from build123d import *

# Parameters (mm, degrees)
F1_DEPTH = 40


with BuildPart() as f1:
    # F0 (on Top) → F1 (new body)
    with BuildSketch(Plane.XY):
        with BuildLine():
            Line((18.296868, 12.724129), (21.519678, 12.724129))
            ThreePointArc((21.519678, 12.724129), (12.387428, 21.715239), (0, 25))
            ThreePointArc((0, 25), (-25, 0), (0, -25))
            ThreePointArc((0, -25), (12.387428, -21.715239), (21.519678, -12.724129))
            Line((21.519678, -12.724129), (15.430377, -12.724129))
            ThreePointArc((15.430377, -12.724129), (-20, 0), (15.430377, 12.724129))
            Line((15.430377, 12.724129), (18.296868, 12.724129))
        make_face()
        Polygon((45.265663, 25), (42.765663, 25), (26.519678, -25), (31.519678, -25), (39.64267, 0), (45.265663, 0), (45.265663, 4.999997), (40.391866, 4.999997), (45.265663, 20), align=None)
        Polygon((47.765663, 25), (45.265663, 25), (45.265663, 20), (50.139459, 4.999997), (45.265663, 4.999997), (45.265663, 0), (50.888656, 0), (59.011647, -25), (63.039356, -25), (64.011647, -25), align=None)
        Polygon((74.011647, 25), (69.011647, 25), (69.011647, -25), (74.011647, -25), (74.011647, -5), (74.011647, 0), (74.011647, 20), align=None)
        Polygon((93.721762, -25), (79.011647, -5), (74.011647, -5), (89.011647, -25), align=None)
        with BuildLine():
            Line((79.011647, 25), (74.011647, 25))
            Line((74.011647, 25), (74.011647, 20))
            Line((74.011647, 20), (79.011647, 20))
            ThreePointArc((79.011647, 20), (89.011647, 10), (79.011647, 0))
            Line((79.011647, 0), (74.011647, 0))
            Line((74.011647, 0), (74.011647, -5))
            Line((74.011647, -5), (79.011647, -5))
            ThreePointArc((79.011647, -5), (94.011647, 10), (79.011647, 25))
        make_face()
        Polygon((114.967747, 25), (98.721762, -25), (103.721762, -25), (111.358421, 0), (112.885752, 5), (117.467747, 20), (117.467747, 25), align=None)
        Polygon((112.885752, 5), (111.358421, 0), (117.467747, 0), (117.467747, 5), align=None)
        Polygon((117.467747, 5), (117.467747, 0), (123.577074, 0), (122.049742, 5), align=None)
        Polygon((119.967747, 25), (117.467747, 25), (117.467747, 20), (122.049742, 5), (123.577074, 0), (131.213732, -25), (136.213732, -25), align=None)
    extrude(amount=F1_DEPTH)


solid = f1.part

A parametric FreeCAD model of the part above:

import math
import FreeCAD as App
import Part
import Sketcher

V = App.Vector
Q = App.Units.Quantity

doc = App.newDocument("Part")
body = doc.addObject("PartDesign::Body", "Body")
body.AllowCompound = True

sketch1 = body.newObject("Sketcher::SketchObject", "Sketch")
sketch1.AttachmentSupport = (doc.getObject("XY_Plane"), [""])
sketch1.MapMode = "FlatFace"
sketch1.addGeometry(Part.ArcOfCircle(Part.Circle(V(-0.000002, -0.000003, 0), V(0, 0, 1), 25.000003), math.radians(30.594928), math.radians(89.999996)), False)
sketch1.addGeometry(Part.ArcOfCircle(Part.Circle(V(0, 0, 0), V(0, 0, 1), 25), math.radians(90), math.radians(270)), False)
sketch1.addGeometry(Part.ArcOfCircle(Part.Circle(V(-0.000002, 0.000003, 0), V(0, 0, 1), 25.000003), math.radians(-89.999996), math.radians(-30.594928)), False)
sketch1.addGeometry(Part.LineSegment(V(21.519678, -12.724129, 0), V(15.430377, -12.724129, 0)), False)
sketch1.addGeometry(Part.ArcOfCircle(Part.Circle(V(0, 0, 0), V(0, 0, 1), 20), math.radians(39.509522), math.radians(320.490478)), False)
sketch1.addGeometry(Part.LineSegment(V(15.430377, 12.724129, 0), V(21.519678, 12.724129, 0)), False)
sketch1.addGeometry(Part.LineSegment(V(42.765663, 25, 0), V(26.519678, -25, 0)), False)
sketch1.addGeometry(Part.LineSegment(V(26.519678, -25, 0), V(31.519678, -25, 0)), False)
sketch1.addGeometry(Part.LineSegment(V(31.519678, -25, 0), V(39.64267, 0, 0)), False)
sketch1.addGeometry(Part.LineSegment(V(39.64267, 0, 0), V(50.888656, 0, 0)), False)
sketch1.addGeometry(Part.LineSegment(V(50.888656, 0, 0), V(59.011647, -25, 0)), False)
sketch1.addGeometry(Part.LineSegment(V(59.011647, -25, 0), V(64.011647, -25, 0)), False)
sketch1.addGeometry(Part.LineSegment(V(64.011647, -25, 0), V(47.765663, 25, 0)), False)
sketch1.addGeometry(Part.LineSegment(V(47.765663, 25, 0), V(42.765663, 25, 0)), False)
sketch1.addGeometry(Part.LineSegment(V(40.391866, 4.999997, 0), V(45.265663, 20, 0)), False)
sketch1.addGeometry(Part.LineSegment(V(45.265663, 20, 0), V(50.139459, 4.999997, 0)), False)
sketch1.addGeometry(Part.LineSegment(V(50.139459, 4.999997, 0), V(40.391866, 4.999997, 0)), False)
sketch1.addGeometry(Part.LineSegment(V(69.011647, 25, 0), V(69.011647, -25, 0)), False)
sketch1.addGeometry(Part.LineSegment(V(69.011647, -25, 0), V(74.011647, -25, 0)), False)
sketch1.addGeometry(Part.LineSegment(V(74.011647, -25, 0), V(74.011647, -5, 0)), False)
sketch1.addGeometry(Part.LineSegment(V(74.011647, -5, 0), V(89.011647, -25, 0)), False)
sketch1.addGeometry(Part.LineSegment(V(89.011647, -25, 0), V(93.721762, -25, 0)), False)
sketch1.addGeometry(Part.LineSegment(V(93.721762, -25, 0), V(79.011647, -5, 0)), False)
sketch1.addGeometry(Part.ArcOfCircle(Part.Circle(V(79.011647, 10, 0), V(0, 0, 1), 15), math.radians(-90), math.radians(90)), False)
sketch1.addGeometry(Part.LineSegment(V(79.011647, 25, 0), V(69.011647, 25, 0)), False)
sketch1.addGeometry(Part.LineSegment(V(74.011647, 0, 0), V(74.011647, 20, 0)), False)
sketch1.addGeometry(Part.LineSegment(V(74.011647, 20, 0), V(79.011647, 20, 0)), False)
sketch1.addGeometry(Part.ArcOfCircle(Part.Circle(V(79.011647, 10, 0), V(0, 0, 1), 10), math.radians(-90), math.radians(90)), False)
sketch1.addGeometry(Part.LineSegment(V(79.011647, 0, 0), V(74.011647, 0, 0)), False)
sketch1.addGeometry(Part.LineSegment(V(114.967747, 25, 0), V(98.721762, -25, 0)), False)
sketch1.addGeometry(Part.LineSegment(V(98.721762, -25, 0), V(103.721762, -25, 0)), False)
sketch1.addGeometry(Part.LineSegment(V(103.721762, -25, 0), V(111.358421, 0, 0)), False)
sketch1.addGeometry(Part.LineSegment(V(111.358421, 0, 0), V(123.577074, 0, 0)), False)
sketch1.addGeometry(Part.LineSegment(V(123.577074, 0, 0), V(131.213732, -25, 0)), False)
sketch1.addGeometry(Part.LineSegment(V(131.213732, -25, 0), V(136.213732, -25, 0)), False)
sketch1.addGeometry(Part.LineSegment(V(136.213732, -25, 0), V(119.967747, 25, 0)), False)
sketch1.addGeometry(Part.LineSegment(V(119.967747, 25, 0), V(114.967747, 25, 0)), False)
sketch1.addGeometry(Part.LineSegment(V(122.049742, 5, 0), V(112.885752, 5, 0)), False)
sketch1.addGeometry(Part.LineSegment(V(112.885752, 5, 0), V(117.467747, 20, 0)), False)
sketch1.addGeometry(Part.LineSegment(V(117.467747, 20, 0), V(122.049742, 5, 0)), False)
sketch1.addConstraint(Sketcher.Constraint("Tangent", 0, 2, 1, 1))
sketch1.addConstraint(Sketcher.Constraint("Tangent", 1, 2, 2, 1))
sketch1.addConstraint(Sketcher.Constraint("Coincident", 2, 2, 3, 1))
sketch1.addConstraint(Sketcher.Constraint("Coincident", 3, 2, 4, 2))
sketch1.addConstraint(Sketcher.Constraint("Coincident", 4, 1, 5, 1))
sketch1.addConstraint(Sketcher.Constraint("Coincident", 5, 2, 0, 1))
sketch1.addConstraint(Sketcher.Constraint("Coincident", 6, 2, 7, 1))
sketch1.addConstraint(Sketcher.Constraint("Coincident", 7, 2, 8, 1))
sketch1.addConstraint(Sketcher.Constraint("Coincident", 8, 2, 9, 1))
sketch1.addConstraint(Sketcher.Constraint("Coincident", 9, 2, 10, 1))
sketch1.addConstraint(Sketcher.Constraint("Coincident", 10, 2, 11, 1))
sketch1.addConstraint(Sketcher.Constraint("Coincident", 11, 2, 12, 1))
sketch1.addConstraint(Sketcher.Constraint("Coincident", 12, 2, 13, 1))
sketch1.addConstraint(Sketcher.Constraint("Coincident", 13, 2, 6, 1))
sketch1.addConstraint(Sketcher.Constraint("Coincident", 14, 2, 15, 1))
sketch1.addConstraint(Sketcher.Constraint("Coincident", 15, 2, 16, 1))
sketch1.addConstraint(Sketcher.Constraint("Coincident", 16, 2, 14, 1))
sketch1.addConstraint(Sketcher.Constraint("Coincident", 17, 2, 18, 1))
sketch1.addConstraint(Sketcher.Constraint("Coincident", 18, 2, 19, 1))
sketch1.addConstraint(Sketcher.Constraint("Coincident", 19, 2, 20, 1))
sketch1.addConstraint(Sketcher.Constraint("Coincident", 20, 2, 21, 1))
sketch1.addConstraint(Sketcher.Constraint("Coincident", 21, 2, 22, 1))
sketch1.addConstraint(Sketcher.Constraint("Coincident", 22, 2, 23, 1))
sketch1.addConstraint(Sketcher.Constraint("Tangent", 23, 2, 24, 1))
sketch1.addConstraint(Sketcher.Constraint("Coincident", 24, 2, 17, 1))
sketch1.addConstraint(Sketcher.Constraint("Coincident", 25, 2, 26, 1))
sketch1.addConstraint(Sketcher.Constraint("Tangent", 26, 2, 27, 2))
sketch1.addConstraint(Sketcher.Constraint("Tangent", 27, 1, 28, 1))
sketch1.addConstraint(Sketcher.Constraint("Coincident", 28, 2, 25, 1))
sketch1.addConstraint(Sketcher.Constraint("Coincident", 29, 2, 30, 1))
sketch1.addConstraint(Sketcher.Constraint("Coincident", 30, 2, 31, 1))
sketch1.addConstraint(Sketcher.Constraint("Coincident", 31, 2, 32, 1))
sketch1.addConstraint(Sketcher.Constraint("Coincident", 32, 2, 33, 1))
sketch1.addConstraint(Sketcher.Constraint("Coincident", 33, 2, 34, 1))
sketch1.addConstraint(Sketcher.Constraint("Coincident", 34, 2, 35, 1))
sketch1.addConstraint(Sketcher.Constraint("Coincident", 35, 2, 36, 1))
sketch1.addConstraint(Sketcher.Constraint("Coincident", 36, 2, 29, 1))
sketch1.addConstraint(Sketcher.Constraint("Coincident", 37, 2, 38, 1))
sketch1.addConstraint(Sketcher.Constraint("Coincident", 38, 2, 39, 1))
sketch1.addConstraint(Sketcher.Constraint("Coincident", 39, 2, 37, 1))
sketch1.addConstraint(Sketcher.Constraint("Horizontal", 3))
sketch1.addConstraint(Sketcher.Constraint("Horizontal", 5))
sketch1.addConstraint(Sketcher.Constraint("Horizontal", 7))
sketch1.addConstraint(Sketcher.Constraint("Horizontal", 9))
sketch1.addConstraint(Sketcher.Constraint("Horizontal", 11))
sketch1.addConstraint(Sketcher.Constraint("Horizontal", 13))
sketch1.addConstraint(Sketcher.Constraint("Horizontal", 16))
sketch1.addConstraint(Sketcher.Constraint("Vertical", 17))
sketch1.addConstraint(Sketcher.Constraint("Horizontal", 18))
sketch1.addConstraint(Sketcher.Constraint("Vertical", 19))
sketch1.addConstraint(Sketcher.Constraint("Horizontal", 21))
sketch1.addConstraint(Sketcher.Constraint("Horizontal", 24))
sketch1.addConstraint(Sketcher.Constraint("Vertical", 25))
sketch1.addConstraint(Sketcher.Constraint("Horizontal", 26))
sketch1.addConstraint(Sketcher.Constraint("Horizontal", 28))
sketch1.addConstraint(Sketcher.Constraint("Horizontal", 30))
sketch1.addConstraint(Sketcher.Constraint("Horizontal", 32))
sketch1.addConstraint(Sketcher.Constraint("Horizontal", 34))
sketch1.addConstraint(Sketcher.Constraint("Horizontal", 36))
sketch1.addConstraint(Sketcher.Constraint("Horizontal", 37))
sketch1.addConstraint(Sketcher.Constraint("Coincident", 0, 3, -1, 1))
sketch1.addConstraint(Sketcher.Constraint("Coincident", 4, 3, -1, 1))
sketch1.addConstraint(Sketcher.Constraint("Coincident", 27, 3, 23, 3))
sketch1.addConstraint(Sketcher.Constraint("Equal", 0, 2))
sketch1.addConstraint(Sketcher.Constraint("Symmetric", 0, 2, 1, 2, -1, 1))
sketch1.addConstraint(Sketcher.Constraint("PointOnObject", 0, 2, -2))
sketch1.addConstraint(Sketcher.Constraint("PointOnObject", 8, 2, -1))
sketch1.addConstraint(Sketcher.Constraint("PointOnObject", 27, 1, -1))
sketch1.addConstraint(Sketcher.Constraint("PointOnObject", 31, 2, -1))
sketch1.addConstraint(Sketcher.Constraint("Parallel", 6, 8))
sketch1.addConstraint(Sketcher.Constraint("Parallel", 10, 12))
sketch1.addConstraint(Sketcher.Constraint("Parallel", 8, 14))
sketch1.addConstraint(Sketcher.Constraint("Parallel", 12, 15))
sketch1.addConstraint(Sketcher.Constraint("Parallel", 14, 29))
sketch1.addConstraint(Sketcher.Constraint("Parallel", 15, 35))
sketch1.addConstraint(Sketcher.Constraint("Parallel", 31, 38))
sketch1.addConstraint(Sketcher.Constraint("Parallel", 33, 39))
sketch1.addConstraint(Sketcher.Constraint("Horizontal", 1, 2, 6, 2))
sketch1.addConstraint(Sketcher.Constraint("Horizontal", 7, 2, 10, 2))
sketch1.addConstraint(Sketcher.Constraint("Horizontal", 0, 2, 12, 2))
sketch1.addConstraint(Sketcher.Constraint("Horizontal", 11, 2, 17, 2))
sketch1.addConstraint(Sketcher.Constraint("Horizontal", 18, 2, 20, 2))
sketch1.addConstraint(Sketcher.Constraint("Horizontal", 19, 2, 22, 2))
sketch1.addConstraint(Sketcher.Constraint("Horizontal", 13, 2, 23, 2))
sketch1.addConstraint(Sketcher.Constraint("Horizontal", 14, 2, 25, 2))
sketch1.addConstraint(Sketcher.Constraint("Horizontal", 21, 2, 29, 2))
sketch1.addConstraint(Sketcher.Constraint("Horizontal", 30, 2, 33, 2))
sketch1.addConstraint(Sketcher.Constraint("Horizontal", 24, 2, 35, 2))
sketch1.addConstraint(Sketcher.Constraint("Horizontal", 26, 2, 38, 2))
sketch1.addConstraint(Sketcher.Constraint("Vertical", 3, 2, 4, 1))
sketch1.addConstraint(Sketcher.Constraint("Vertical", 27, 3, 22, 2))
sketch1.addConstraint(Sketcher.Constraint("Vertical", 19, 2, 25, 2))
sketch1.addConstraint(Sketcher.Constraint("Equal", 7, 11))
sketch1.addConstraint(Sketcher.Constraint("Equal", 11, 13))
sketch1.addConstraint(Sketcher.Constraint("Equal", 13, 18))
sketch1.addConstraint(Sketcher.Constraint("Equal", 18, 26))
sketch1.addConstraint(Sketcher.Constraint("Equal", 28, 30))
sketch1.addConstraint(Sketcher.Constraint("Equal", 30, 34))
sketch1.addConstraint(Sketcher.Constraint("Equal", 34, 36))
sketch1.addConstraint(Sketcher.Constraint("Equal", 8, 10))
sketch1.addConstraint(Sketcher.Constraint("Equal", 31, 33))
sketch1.addConstraint(Sketcher.Constraint("Radius", 1, Q("25 mm")))
sketch1.addConstraint(Sketcher.Constraint("Radius", 4, Q("20 mm")))
sketch1.addConstraint(Sketcher.Constraint("Radius", 23, Q("15 mm")))
sketch1.addConstraint(Sketcher.Constraint("DistanceX", 7, 1, 7, 2, Q("5 mm")))
sketch1.addConstraint(Sketcher.Constraint("Angle", 6, Q("-108 deg")))
sketch1.addConstraint(Sketcher.Constraint("Distance", 20, Q("25 mm")))
sketch1.addConstraint(Sketcher.Constraint("DistanceY", -1, 1, 37, 2, Q("5 mm")))
sketch1.addConstraint(Sketcher.Constraint("DistanceX", 2, 2, 6, 2, Q("5 mm")))
sketch1.addConstraint(Sketcher.Constraint("DistanceX", 11, 2, 17, 2, Q("5 mm")))
sketch1.addConstraint(Sketcher.Constraint("DistanceX", 21, 2, 29, 2, Q("5 mm")))
sketch1.addConstraint(Sketcher.Constraint("DistanceX", 14, 2, 12, 2, Q("2.5 mm")))
sketch1.addConstraint(Sketcher.Constraint("DistanceX", 38, 2, 35, 2, Q("2.5 mm")))
sketch1.addConstraint(Sketcher.Constraint("DistanceX", 3, 2, 3, 1, Q("6.089301 mm")))
sketch1.addConstraint(Sketcher.Constraint("DistanceX", 37, 2, 37, 1, Q("9.16399 mm")))
sketch1.addConstraint(Sketcher.Constraint("DistanceX", 23, 2, 35, 2, Q("40.9561 mm")))
sketch1.addConstraint(Sketcher.Constraint("DistanceX", 16, 2, 16, 1, Q("9.747593 mm")))
pad1 = body.newObject("PartDesign::Pad", "Pad")
pad1.Profile = sketch1
pad1.Length = 40

doc.recompute()
